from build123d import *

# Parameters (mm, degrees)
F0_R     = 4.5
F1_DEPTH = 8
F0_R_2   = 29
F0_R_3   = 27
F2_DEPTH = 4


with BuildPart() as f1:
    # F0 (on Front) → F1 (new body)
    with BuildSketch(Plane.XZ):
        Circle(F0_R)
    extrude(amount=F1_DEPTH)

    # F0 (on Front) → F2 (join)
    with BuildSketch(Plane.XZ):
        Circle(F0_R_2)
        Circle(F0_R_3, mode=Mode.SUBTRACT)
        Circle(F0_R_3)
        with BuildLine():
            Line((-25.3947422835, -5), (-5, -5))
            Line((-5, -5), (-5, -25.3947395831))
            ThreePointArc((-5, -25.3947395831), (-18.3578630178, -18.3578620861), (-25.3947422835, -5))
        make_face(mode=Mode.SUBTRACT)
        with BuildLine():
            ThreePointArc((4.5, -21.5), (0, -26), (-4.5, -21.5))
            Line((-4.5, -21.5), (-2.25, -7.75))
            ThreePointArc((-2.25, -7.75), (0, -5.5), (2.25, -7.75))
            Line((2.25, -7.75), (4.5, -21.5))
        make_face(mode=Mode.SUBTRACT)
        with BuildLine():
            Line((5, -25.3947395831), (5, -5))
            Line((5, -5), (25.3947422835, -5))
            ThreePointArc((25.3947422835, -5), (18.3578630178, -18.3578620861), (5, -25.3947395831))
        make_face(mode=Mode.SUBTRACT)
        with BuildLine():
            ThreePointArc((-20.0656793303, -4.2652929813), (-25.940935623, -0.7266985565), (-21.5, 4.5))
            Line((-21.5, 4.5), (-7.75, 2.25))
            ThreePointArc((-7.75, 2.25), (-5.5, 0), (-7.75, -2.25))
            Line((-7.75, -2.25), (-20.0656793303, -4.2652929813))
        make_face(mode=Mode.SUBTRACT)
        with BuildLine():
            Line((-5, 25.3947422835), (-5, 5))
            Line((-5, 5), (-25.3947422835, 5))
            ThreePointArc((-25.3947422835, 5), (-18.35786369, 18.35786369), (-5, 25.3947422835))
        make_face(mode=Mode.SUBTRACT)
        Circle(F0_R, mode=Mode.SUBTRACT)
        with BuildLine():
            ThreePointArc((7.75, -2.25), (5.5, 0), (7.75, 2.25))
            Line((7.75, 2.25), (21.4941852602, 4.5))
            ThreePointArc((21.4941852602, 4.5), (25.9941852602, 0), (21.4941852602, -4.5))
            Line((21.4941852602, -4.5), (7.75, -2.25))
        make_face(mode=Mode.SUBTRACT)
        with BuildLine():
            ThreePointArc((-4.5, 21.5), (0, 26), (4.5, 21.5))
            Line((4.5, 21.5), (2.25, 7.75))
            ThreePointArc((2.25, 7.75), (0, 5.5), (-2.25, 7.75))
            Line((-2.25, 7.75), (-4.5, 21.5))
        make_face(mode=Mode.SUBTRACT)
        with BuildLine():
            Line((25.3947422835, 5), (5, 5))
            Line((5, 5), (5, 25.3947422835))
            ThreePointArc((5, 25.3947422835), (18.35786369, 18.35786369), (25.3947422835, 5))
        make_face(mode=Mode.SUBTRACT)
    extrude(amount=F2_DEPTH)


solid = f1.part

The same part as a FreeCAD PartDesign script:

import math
import FreeCAD as App
import Part
import Sketcher

V = App.Vector

doc = App.newDocument("Part")
params = doc.addObject("Spreadsheet::Sheet", "Params")
for row, (alias, value) in enumerate([
    ("sketch1_diameter", "9 mm"),
    ("pad1_length", "8 mm"),
    ("sketch2_diameter", "58 mm"),
    ("sketch2_diameter2", "9 mm"),
    ("sketch2_radius", "25.5 mm"),
    ("sketch2_radius2", "2.25 mm"),
    ("pad2_length", "4 mm"),
], start=1):
    params.set(f"A{row}", alias)
    params.set(f"B{row}", "=" + value)
    params.setAlias(f"B{row}", alias)

body = doc.addObject("PartDesign::Body", "Body")

sketch1 = doc.addObject("Sketcher::SketchObject", "Sketch")
body.addObject(sketch1)
sketch1.AttachmentSupport = (doc.XZ_Plane, [""])
sketch1.MapMode = "FlatFace"
sketch1.addGeometry(Part.Circle(V(0, 0, 0), V(0, 0, 1), 4.5), False)
sketch1.addConstraint([
    Sketcher.Constraint("Coincident", 0, 3, -1, 1),
    Sketcher.Constraint("Diameter", 0, 9.0),
])
sketch1.setExpression("Constraints[1]", "Params.sketch1_diameter")
pad1 = doc.addObject("PartDesign::Pad", "Pad")
body.addObject(pad1)
pad1.Profile = sketch1
pad1.setExpression("Length", "Params.pad1_length")

sketch2 = doc.addObject("Sketcher::SketchObject", "Sketch001")
body.addObject(sketch2)
sketch2.AttachmentSupport = (doc.XZ_Plane, [""])
sketch2.MapMode = "FlatFace"
sketch2.addGeometry([
    Part.Circle(V(0, 0, 0), V(0, 0, 1), 29),
    Part.ArcOfCircle(Part.Circle(V(-0.3, -0.3, 0), V(0, 0, 1), 25.5), math.radians(-169), math.radians(-101)),
    Part.LineSegment(V(-25.4, -5, 0), V(-5, -5, 0)),
    Part.LineSegment(V(-5, -5, 0), V(-5, -25.4, 0)),
    Part.LineSegment(V(2.2, -7.8, 0), V(4.5, -21.5, 0)),
    Part.ArcOfCircle(Part.Circle(V(0, -21.5, 0), V(0, 0, 1), 4.5), math.radians(180), math.radians(360)),
    Part.LineSegment(V(-4.5, -21.5, 0), V(-2.2, -7.8, 0)),
    Part.ArcOfCircle(Part.Circle(V(0, -7.8, 0), V(0, 0, 1), 2.2), math.radians(0), math.radians(180)),
    Part.ArcOfCircle(Part.Circle(V(0.3, -0.3, 0), V(0, 0, 1), 25.5), math.radians(-79), math.radians(-11)),
    Part.LineSegment(V(5, -25.4, 0), V(5, -5, 0)),
    Part.LineSegment(V(5, -5, 0), V(25.4, -5, 0)),
    Part.LineSegment(V(-7.8, -2.2, 0), V(-20.1, -4.3, 0)),
    Part.ArcOfCircle(Part.Circle(V(-21.5, 0, 0), V(0, 0, 1), 4.5), math.radians(90), math.radians(289)),
    Part.LineSegment(V(-21.5, 4.5, 0), V(-7.8, 2.2, 0)),
    Part.ArcOfCircle(Part.Circle(V(-7.8, 0, 0), V(0, 0, 1), 2.2), math.radians(-90), math.radians(90)),
    Part.ArcOfCircle(Part.Circle(V(-0.3, 0.3, 0), V(0, 0, 1), 25.5), math.radians(101), math.radians(169)),
    Part.LineSegment(V(-5, 25.4, 0), V(-5, 5, 0)),
    Part.LineSegment(V(-5, 5, 0), V(-25.4, 5, 0)),
    Part.Circle(V(0, 0, 0), V(0, 0, 1), 4.5),
    Part.LineSegment(V(21.5, -4.5, 0), V(7.8, -2.2, 0)),
    Part.ArcOfCircle(Part.Circle(V(7.8, 0, 0), V(0, 0, 1), 2.2), math.radians(90), math.radians(270)),
    Part.LineSegment(V(7.8, 2.2, 0), V(21.5, 4.5, 0)),
    Part.ArcOfCircle(Part.Circle(V(21.5, 0, 0), V(0, 0, 1), 4.5), math.radians(-90), math.radians(90)),
    Part.LineSegment(V(-2.2, 7.8, 0), V(-4.5, 21.5, 0)),
    Part.ArcOfCircle(Part.Circle(V(0, 21.5, 0), V(0, 0, 1), 4.5), math.radians(0), math.radians(180)),
    Part.LineSegment(V(4.5, 21.5, 0), V(2.2, 7.8, 0)),
    Part.ArcOfCircle(Part.Circle(V(0, 7.8, 0), V(0, 0, 1), 2.2), math.radians(180), math.radians(360)),
    Part.ArcOfCircle(Part.Circle(V(0.3, 0.3, 0), V(0, 0, 1), 25.5), math.radians(11), math.radians(79)),
    Part.LineSegment(V(25.4, 5, 0), V(5, 5, 0)),
    Part.LineSegment(V(5, 5, 0), V(5, 25.4, 0)),
], False)
sketch2.addConstraint([
    Sketcher.Constraint("Coincident", 1, 1, 2, 1),
    Sketcher.Constraint("Coincident", 2, 2, 3, 1),
    Sketcher.Constraint("Coincident", 3, 2, 1, 2),
    Sketcher.Constraint("Coincident", 4, 2, 5, 2),
    Sketcher.Constraint("Coincident", 5, 1, 6, 1),
    Sketcher.Constraint("Coincident", 6, 2, 7, 2),
    Sketcher.Constraint("Coincident", 7, 1, 4, 1),
    Sketcher.Constraint("Coincident", 8, 1, 9, 1),
    Sketcher.Constraint("Coincident", 9, 2, 10, 1),
    Sketcher.Constraint("Coincident", 10, 2, 8, 2),
    Sketcher.Constraint("Coincident", 11, 2, 12, 2),
    Sketcher.Constraint("Coincident", 12, 1, 13, 1),
    Sketcher.Constraint("Coincident", 13, 2, 14, 2),
    Sketcher.Constraint("Coincident", 14, 1, 11, 1),
    Sketcher.Constraint("Coincident", 15, 1, 16, 1),
    Sketcher.Constraint("Coincident", 16, 2, 17, 1),
    Sketcher.Constraint("Coincident", 17, 2, 15, 2),
    Sketcher.Constraint("Coincident", 19, 2, 20, 2),
    Sketcher.Constraint("Coincident", 20, 1, 21, 1),
    Sketcher.Constraint("Coincident", 21, 2, 22, 2),
    Sketcher.Constraint("Coincident", 22, 1, 19, 1),
    Sketcher.Constraint("Coincident", 23, 2, 24, 2),
    Sketcher.Constraint("Coincident", 24, 1, 25, 1),
    Sketcher.Constraint("Coincident", 25, 2, 26, 2),
    Sketcher.Constraint("Coincident", 26, 1, 23, 1),
    Sketcher.Constraint("Coincident", 27, 1, 28, 1),
    Sketcher.Constraint("Coincident", 28, 2, 29, 1),
    Sketcher.Constraint("Coincident", 29, 2, 27, 2),
    Sketcher.Constraint("Horizontal", 2),
    Sketcher.Constraint("Vertical", 3),
    Sketcher.Constraint("Vertical", 9),
    Sketcher.Constraint("Horizontal", 10),
    Sketcher.Constraint("Vertical", 16),
    Sketcher.Constraint("Horizontal", 17),
    Sketcher.Constraint("Horizontal", 28),
    Sketcher.Constraint("Vertical", 29),
    Sketcher.Constraint("Coincident", 0, 3, -1, 1),
    Sketcher.Constraint("Coincident", 18, 3, -1, 1),
    Sketcher.Constraint("Equal", 1, 8),
    Sketcher.Constraint("Equal", 5, 12),
    Sketcher.Constraint("Equal", 7, 14),
    Sketcher.Constraint("Equal", 8, 15),
    Sketcher.Constraint("Equal", 12, 18),
    Sketcher.Constraint("Equal", 14, 20),
    Sketcher.Constraint("Equal", 18, 22),
    Sketcher.Constraint("Equal", 22, 24),
    Sketcher.Constraint("Equal", 20, 26),
    Sketcher.Constraint("Equal", 15, 27),
    Sketcher.Constraint("Symmetric", 8, 3, 15, 3, -1, 1),
    Sketcher.Constraint("Symmetric", 14, 3, 20, 3, -1, 1),
    Sketcher.Constraint("Symmetric", 5, 3, 24, 3, -1, 1),
    Sketcher.Constraint("Symmetric", 7, 3, 26, 3, -1, 1),
    Sketcher.Constraint("Symmetric", 1, 3, 27, 3, -1, 1),
    Sketcher.Constraint("Symmetric", 9, 2, 16, 2, -1, 1),
    Sketcher.Constraint("Symmetric", 2, 2, 28, 2, -1, 1),
    Sketcher.Constraint("Symmetric", 1, 3, 8, 3, -2),
    Sketcher.Constraint("Symmetric", 4, 2, 5, 1, -2),
    Sketcher.Constraint("Symmetric", 6, 2, 7, 1, -2),
    Sketcher.Constraint("Symmetric", 2, 2, 9, 2, -2),
    Sketcher.Constraint("Symmetric", 14, 1, 19, 2, -2),
    Sketcher.Constraint("Symmetric", 21, 2, 22, 1, -1),
    Sketcher.Constraint("PointOnObject", 12, 3, -1),
    Sketcher.Constraint("Perpendicular", 4, 11),
    Sketcher.Constraint("Perpendicular", 6, 13),
    Sketcher.Constraint("Perpendicular", 11, 23),
    Sketcher.Constraint("Perpendicular", 13, 25),
    Sketcher.Constraint("Horizontal", 5, 3, 4, 2),
    Sketcher.Constraint("Horizontal", 7, 3, 6, 2),
    Sketcher.Constraint("Horizontal", 24, 3, 23, 2),
    Sketcher.Constraint("Horizontal", 23, 2, 24, 1),
    Sketcher.Constraint("Vertical", 14, 3, 13, 2),
    Sketcher.Constraint("Vertical", 13, 2, 14, 1),
    Sketcher.Constraint("Vertical", 19, 2, 20, 1),
    Sketcher.Constraint("Vertical", 22, 3, 21, 2),
    Sketcher.Constraint("Equal", 28, 16),
    Sketcher.Constraint("Diameter", 0, 58.0),
    Sketcher.Constraint("Diameter", 18, 9.0),
    Sketcher.Constraint("Radius", 1, 25.5),
    Sketcher.Constraint("Radius", 7, 2.25),
    Sketcher.Constraint("DistanceY", 1, 1, -1, 1, 5.0),
    Sketcher.Constraint("DistanceX", 2, 2, -1, 1, 5.0),
    Sketcher.Constraint("DistanceY", 5, 3, -1, 1, 21.5),
    Sketcher.Constraint("DistanceX", 12, 3, -1, 1, 21.5),
    Sketcher.Constraint("DistanceX", 12, 1, -1, 1, 21.5),
    Sketcher.Constraint("DistanceX", 14, 1, 6, 2, 5.5),
    Sketcher.Constraint("DistanceY", 3, 2, 3, 1, 20.39474),
    Sketcher.Constraint("Distance", 19, 13.927136),
])
sketch2.setExpression("Constraints[75]", "Params.sketch2_diameter")
sketch2.setExpression("Constraints[76]", "Params.sketch2_diameter2")
sketch2.setExpression("Constraints[77]", "Params.sketch2_radius")
sketch2.setExpression("Constraints[78]", "Params.sketch2_radius2")
pad2 = doc.addObject("PartDesign::Pad", "Pad001")
body.addObject(pad2)
pad2.Profile = sketch2
pad2.setExpression("Length", "Params.pad2_length")

doc.recompute()
